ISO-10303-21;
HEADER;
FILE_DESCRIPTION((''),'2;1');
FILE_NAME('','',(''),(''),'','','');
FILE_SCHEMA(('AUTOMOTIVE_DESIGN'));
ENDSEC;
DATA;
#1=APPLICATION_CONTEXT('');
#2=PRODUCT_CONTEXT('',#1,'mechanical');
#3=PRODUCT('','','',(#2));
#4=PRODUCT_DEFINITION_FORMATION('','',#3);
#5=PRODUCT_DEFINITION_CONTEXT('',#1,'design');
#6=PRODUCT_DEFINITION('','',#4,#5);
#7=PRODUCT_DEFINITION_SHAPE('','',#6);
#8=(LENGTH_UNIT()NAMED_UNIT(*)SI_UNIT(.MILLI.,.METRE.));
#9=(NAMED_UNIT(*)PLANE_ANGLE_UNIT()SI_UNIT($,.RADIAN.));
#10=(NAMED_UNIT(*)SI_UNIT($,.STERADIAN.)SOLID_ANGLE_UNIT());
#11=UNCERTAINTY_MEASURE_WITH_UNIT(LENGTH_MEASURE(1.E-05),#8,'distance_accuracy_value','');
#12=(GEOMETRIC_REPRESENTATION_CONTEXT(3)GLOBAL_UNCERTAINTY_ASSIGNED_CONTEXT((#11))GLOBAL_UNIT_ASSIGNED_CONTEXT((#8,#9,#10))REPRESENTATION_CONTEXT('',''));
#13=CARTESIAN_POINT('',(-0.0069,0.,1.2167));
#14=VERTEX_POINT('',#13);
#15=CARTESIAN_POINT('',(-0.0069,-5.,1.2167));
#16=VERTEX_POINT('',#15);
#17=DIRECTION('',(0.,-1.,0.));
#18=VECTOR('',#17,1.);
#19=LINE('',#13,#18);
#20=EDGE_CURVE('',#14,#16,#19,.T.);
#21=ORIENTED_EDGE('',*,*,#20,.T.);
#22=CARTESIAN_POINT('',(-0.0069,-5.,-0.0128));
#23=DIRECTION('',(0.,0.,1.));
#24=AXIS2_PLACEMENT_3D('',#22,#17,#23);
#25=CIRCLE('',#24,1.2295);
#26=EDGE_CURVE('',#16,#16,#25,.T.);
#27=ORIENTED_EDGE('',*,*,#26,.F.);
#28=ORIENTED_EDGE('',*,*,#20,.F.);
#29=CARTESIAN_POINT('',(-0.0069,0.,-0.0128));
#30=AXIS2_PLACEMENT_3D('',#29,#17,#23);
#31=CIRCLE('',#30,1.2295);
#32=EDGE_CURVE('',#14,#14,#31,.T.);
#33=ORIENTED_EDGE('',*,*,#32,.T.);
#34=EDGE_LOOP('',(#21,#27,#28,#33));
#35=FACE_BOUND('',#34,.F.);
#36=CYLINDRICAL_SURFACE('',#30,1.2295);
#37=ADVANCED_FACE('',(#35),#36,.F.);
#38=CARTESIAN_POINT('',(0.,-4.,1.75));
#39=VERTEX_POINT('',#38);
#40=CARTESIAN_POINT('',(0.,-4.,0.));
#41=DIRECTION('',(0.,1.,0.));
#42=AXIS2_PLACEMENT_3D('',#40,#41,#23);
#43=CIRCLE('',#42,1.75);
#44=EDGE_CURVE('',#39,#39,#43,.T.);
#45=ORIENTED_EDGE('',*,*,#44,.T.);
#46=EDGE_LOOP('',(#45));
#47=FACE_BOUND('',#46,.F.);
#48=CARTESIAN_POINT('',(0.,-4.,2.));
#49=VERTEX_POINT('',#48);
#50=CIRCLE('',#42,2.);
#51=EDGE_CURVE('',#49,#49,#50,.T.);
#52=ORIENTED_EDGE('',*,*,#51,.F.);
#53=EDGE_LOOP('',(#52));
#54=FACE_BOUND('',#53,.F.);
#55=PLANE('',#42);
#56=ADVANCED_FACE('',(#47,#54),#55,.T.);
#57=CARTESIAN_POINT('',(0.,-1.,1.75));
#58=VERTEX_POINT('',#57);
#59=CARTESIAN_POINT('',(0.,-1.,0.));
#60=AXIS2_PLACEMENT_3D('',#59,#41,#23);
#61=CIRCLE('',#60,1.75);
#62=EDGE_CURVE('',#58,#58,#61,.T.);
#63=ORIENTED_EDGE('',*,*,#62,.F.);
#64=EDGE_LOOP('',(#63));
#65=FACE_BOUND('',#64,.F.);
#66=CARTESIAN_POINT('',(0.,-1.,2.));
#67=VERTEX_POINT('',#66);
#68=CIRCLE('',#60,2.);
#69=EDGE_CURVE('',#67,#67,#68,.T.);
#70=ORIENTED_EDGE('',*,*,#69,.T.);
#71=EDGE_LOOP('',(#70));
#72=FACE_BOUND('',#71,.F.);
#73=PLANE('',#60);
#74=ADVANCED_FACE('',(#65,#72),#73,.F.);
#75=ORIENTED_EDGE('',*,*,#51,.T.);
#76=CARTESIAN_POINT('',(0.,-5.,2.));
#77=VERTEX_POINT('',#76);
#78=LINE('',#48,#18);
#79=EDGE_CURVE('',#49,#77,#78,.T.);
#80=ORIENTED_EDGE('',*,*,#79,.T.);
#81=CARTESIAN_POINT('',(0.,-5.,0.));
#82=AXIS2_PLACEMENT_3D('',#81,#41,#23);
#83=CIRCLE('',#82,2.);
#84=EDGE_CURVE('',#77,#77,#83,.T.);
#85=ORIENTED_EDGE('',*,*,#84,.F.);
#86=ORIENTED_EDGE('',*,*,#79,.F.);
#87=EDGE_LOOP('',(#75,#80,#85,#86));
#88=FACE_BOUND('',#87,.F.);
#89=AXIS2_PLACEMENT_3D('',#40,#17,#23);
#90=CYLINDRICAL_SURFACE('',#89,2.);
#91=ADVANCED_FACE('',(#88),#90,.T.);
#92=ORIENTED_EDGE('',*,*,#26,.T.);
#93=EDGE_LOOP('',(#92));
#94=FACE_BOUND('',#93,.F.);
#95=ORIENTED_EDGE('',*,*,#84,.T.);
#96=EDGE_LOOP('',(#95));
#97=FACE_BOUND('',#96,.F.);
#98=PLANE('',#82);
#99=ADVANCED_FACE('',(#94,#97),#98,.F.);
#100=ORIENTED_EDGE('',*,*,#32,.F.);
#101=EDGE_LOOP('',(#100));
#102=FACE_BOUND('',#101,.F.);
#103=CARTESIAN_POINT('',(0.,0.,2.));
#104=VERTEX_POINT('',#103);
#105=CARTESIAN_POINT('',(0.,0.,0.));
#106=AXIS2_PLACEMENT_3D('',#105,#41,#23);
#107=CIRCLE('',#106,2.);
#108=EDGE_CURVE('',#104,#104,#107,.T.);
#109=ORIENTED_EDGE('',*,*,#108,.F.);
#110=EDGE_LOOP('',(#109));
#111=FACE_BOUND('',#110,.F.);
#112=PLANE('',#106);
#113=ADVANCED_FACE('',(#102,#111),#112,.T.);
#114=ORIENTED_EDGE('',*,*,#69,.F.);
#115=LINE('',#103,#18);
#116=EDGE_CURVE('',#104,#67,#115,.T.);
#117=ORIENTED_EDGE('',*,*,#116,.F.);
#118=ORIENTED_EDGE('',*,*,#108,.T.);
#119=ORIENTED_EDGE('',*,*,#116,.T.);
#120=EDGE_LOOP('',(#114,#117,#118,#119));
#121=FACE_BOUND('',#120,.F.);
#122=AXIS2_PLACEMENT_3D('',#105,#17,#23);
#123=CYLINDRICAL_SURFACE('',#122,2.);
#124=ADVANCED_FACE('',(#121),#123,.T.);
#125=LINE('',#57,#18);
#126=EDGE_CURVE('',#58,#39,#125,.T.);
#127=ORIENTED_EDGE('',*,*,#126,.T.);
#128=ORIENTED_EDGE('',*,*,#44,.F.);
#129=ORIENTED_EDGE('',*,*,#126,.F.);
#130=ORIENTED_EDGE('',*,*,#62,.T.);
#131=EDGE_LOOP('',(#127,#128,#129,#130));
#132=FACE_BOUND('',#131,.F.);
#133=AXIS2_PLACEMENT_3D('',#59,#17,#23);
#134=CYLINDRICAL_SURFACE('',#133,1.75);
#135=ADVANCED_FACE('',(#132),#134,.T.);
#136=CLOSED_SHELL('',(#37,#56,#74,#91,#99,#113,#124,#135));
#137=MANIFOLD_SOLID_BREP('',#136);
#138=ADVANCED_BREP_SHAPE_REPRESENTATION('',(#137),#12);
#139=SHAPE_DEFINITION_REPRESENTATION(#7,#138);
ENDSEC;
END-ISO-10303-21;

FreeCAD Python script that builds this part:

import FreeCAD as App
import Part
import Sketcher
from FreeCAD import Vector

doc = App.newDocument("Part")
body = doc.addObject("PartDesign::Body", "Body")

sketch1 = doc.addObject("Sketcher::SketchObject", "Sketch")
body.addObject(sketch1)
sketch1.AttachmentSupport = (doc.YZ_Plane, [""])
sketch1.MapMode = "FlatFace"
sketch1.addGeometry([
    Part.LineSegment(Vector(-5, 0, 0), Vector(0, 0, 0)),
    Part.LineSegment(Vector(0, 0, 0), Vector(0, 2, 0)),
    Part.LineSegment(Vector(0, 2, 0), Vector(-1, 2, 0)),
    Part.LineSegment(Vector(-1, 2, 0), Vector(-1, 1.75, 0)),
    Part.LineSegment(Vector(-1, 1.75, 0), Vector(-4, 1.75, 0)),
    Part.LineSegment(Vector(-4, 1.75, 0), Vector(-4, 2, 0)),
    Part.LineSegment(Vector(-4, 2, 0), Vector(-5, 2, 0)),
    Part.LineSegment(Vector(-5, 2, 0), Vector(-5, 0, 0)),
], False)
sketch1.addConstraint([
    Sketcher.Constraint("Coincident", 0, 2, 1, 1),
    Sketcher.Constraint("Coincident", 1, 2, 2, 1),
    Sketcher.Constraint("Coincident", 2, 2, 3, 1),
    Sketcher.Constraint("Coincident", 3, 2, 4, 1),
    Sketcher.Constraint("Coincident", 4, 2, 5, 1),
    Sketcher.Constraint("Coincident", 5, 2, 6, 1),
    Sketcher.Constraint("Coincident", 6, 2, 7, 1),
    Sketcher.Constraint("Coincident", 7, 2, 0, 1),
    Sketcher.Constraint("Horizontal", 0),
    Sketcher.Constraint("Vertical", 1),
    Sketcher.Constraint("Horizontal", 2),
    Sketcher.Constraint("Vertical", 3),
    Sketcher.Constraint("Horizontal", 4),
    Sketcher.Constraint("Vertical", 5),
    Sketcher.Constraint("Horizontal", 6),
    Sketcher.Constraint("Vertical", 7),
    Sketcher.Constraint("Coincident", 0, 2, -1, 1),
    Sketcher.Constraint("Horizontal", 2, 2, 5, 2),
    Sketcher.Constraint("Equal", 2, 6),
    Sketcher.Constraint("DistanceX", 2, 2, 2, 1, 1.0),
    Sketcher.Constraint("DistanceX", 4, 2, 4, 1, 3.0),
    Sketcher.Constraint("DistanceY", 1, 1, 1, 2, 2.0),
    Sketcher.Constraint("DistanceY", 3, 2, 3, 1, 0.25),
])
revolution = doc.addObject("PartDesign::Revolution", "Revolution")
body.addObject(revolution)
revolution.Profile = sketch1
revolution.ReferenceAxis = (sketch1, ["H_Axis"])
revolution.Angle = 360

sketch2 = doc.addObject("Sketcher::SketchObject", "Sketch001")
body.addObject(sketch2)
sketch2.AttachmentSupport = (doc.XZ_Plane, [""])
sketch2.MapMode = "FlatFace"
sketch2.addGeometry(Part.Circle(Vector(0, 0, 0), Vector(0, 0, 1), 1.2), False)
sketch2.addConstraint([
    Sketcher.Constraint("Diameter", 0, 2.459),
    Sketcher.Constraint("DistanceX", 0, 3, -1, 1, 0.007),
    Sketcher.Constraint("DistanceY", 0, 3, -1, 1, 0.0128),
])
doc.recompute()
hole = doc.addObject("PartDesign::Hole", "Hole")
body.addObject(hole)
hole.Profile = sketch2
hole.ThreadType = "None"
hole.Diameter = 2.459
hole.DepthType = "ThroughAll"
hole.Reversed = True

doc.recompute()
